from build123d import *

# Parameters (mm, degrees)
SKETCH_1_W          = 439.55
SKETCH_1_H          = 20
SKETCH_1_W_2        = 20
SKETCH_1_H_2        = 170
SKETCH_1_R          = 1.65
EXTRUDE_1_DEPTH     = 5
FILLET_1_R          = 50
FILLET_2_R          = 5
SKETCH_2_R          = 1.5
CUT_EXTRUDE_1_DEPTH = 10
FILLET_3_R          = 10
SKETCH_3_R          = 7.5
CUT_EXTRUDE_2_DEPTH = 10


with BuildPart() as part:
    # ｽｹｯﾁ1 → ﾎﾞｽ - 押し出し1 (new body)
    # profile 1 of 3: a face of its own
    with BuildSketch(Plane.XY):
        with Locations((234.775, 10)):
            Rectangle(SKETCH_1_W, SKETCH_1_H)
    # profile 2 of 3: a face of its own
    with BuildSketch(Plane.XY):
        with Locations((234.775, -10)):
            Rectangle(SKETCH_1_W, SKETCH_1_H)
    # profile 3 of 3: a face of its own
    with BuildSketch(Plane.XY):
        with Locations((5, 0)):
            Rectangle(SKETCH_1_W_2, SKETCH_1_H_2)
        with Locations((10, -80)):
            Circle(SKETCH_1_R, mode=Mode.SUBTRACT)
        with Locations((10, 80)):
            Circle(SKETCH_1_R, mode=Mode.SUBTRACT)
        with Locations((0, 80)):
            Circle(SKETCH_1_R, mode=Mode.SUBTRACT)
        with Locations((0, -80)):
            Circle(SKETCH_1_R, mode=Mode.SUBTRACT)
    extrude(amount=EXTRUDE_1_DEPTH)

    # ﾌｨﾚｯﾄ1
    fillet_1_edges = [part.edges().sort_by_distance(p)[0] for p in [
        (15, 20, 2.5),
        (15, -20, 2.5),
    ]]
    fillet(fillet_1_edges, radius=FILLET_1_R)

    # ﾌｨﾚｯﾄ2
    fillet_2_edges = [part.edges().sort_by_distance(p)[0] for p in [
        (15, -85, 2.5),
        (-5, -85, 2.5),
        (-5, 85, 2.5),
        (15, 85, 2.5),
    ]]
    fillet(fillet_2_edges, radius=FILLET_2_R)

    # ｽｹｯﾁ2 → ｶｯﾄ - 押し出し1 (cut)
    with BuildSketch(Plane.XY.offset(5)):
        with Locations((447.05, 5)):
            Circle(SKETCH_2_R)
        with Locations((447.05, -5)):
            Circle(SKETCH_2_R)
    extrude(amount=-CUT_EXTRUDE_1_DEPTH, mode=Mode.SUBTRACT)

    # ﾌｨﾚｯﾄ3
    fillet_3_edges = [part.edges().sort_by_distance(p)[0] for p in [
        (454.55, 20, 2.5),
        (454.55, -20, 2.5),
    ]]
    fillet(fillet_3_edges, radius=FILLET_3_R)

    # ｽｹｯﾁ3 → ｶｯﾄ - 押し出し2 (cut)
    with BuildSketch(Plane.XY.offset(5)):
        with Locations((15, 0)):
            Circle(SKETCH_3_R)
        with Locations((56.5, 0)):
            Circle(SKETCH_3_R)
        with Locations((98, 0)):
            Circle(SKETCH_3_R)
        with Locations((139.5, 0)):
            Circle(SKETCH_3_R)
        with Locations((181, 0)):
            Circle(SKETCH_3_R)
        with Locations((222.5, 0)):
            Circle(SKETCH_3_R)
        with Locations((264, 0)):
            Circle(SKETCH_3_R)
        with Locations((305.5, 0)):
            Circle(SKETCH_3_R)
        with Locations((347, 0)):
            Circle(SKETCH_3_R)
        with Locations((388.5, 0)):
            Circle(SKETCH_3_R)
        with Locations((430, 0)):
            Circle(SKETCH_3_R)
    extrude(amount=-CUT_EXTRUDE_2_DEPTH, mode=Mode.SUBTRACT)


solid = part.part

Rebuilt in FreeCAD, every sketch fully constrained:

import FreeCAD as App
import Part
import Sketcher

V = App.Vector
Q = App.Units.Quantity


def edges_at(feature, points):
    """Names of the edges that pass closest to the given points."""
    edges = feature.Shape.Edges
    near = lambda p: min(range(len(edges)), key=lambda i: edges[i].distToShape(Part.Vertex(*p))[0])
    return sorted({f"Edge{near(p) + 1}" for p in points})

doc = App.newDocument("Part")
body = doc.addObject("PartDesign::Body", "Body")

sketch1 = body.newObject("Sketcher::SketchObject", "Sketch")
sketch1.AttachmentSupport = (doc.getObject("XY_Plane"), [""])
sketch1.MapMode = "FlatFace"
sketch1.addGeometry(Part.LineSegment(V(454.55, 20, 0), V(15, 20, 0)), False)
sketch1.addGeometry(Part.LineSegment(V(15, 20, 0), V(15, 85, 0)), False)
sketch1.addGeometry(Part.LineSegment(V(15, 85, 0), V(-5, 85, 0)), False)
sketch1.addGeometry(Part.LineSegment(V(-5, 85, 0), V(-5, -85, 0)), False)
sketch1.addGeometry(Part.LineSegment(V(-5, -85, 0), V(15, -85, 0)), False)
sketch1.addGeometry(Part.LineSegment(V(15, -85, 0), V(15, -20, 0)), False)
sketch1.addGeometry(Part.LineSegment(V(15, -20, 0), V(454.55, -20, 0)), False)
sketch1.addGeometry(Part.LineSegment(V(454.55, -20, 0), V(454.55, 20, 0)), False)
sketch1.addGeometry(Part.Circle(V(10, 80, 0), V(0, 0, 1), 1.65), False)
sketch1.addGeometry(Part.Circle(V(0, -80, 0), V(0, 0, 1), 1.65), False)
sketch1.addGeometry(Part.Circle(V(10, -80, 0), V(0, 0, 1), 1.65), False)
sketch1.addGeometry(Part.Circle(V(0, 80, 0), V(0, 0, 1), 1.65), False)
sketch1.addConstraint(Sketcher.Constraint("Coincident", 0, 2, 1, 1))
sketch1.addConstraint(Sketcher.Constraint("Coincident", 1, 2, 2, 1))
sketch1.addConstraint(Sketcher.Constraint("Coincident", 2, 2, 3, 1))
sketch1.addConstraint(Sketcher.Constraint("Coincident", 3, 2, 4, 1))
sketch1.addConstraint(Sketcher.Constraint("Coincident", 4, 2, 5, 1))
sketch1.addConstraint(Sketcher.Constraint("Coincident", 5, 2, 6, 1))
sketch1.addConstraint(Sketcher.Constraint("Coincident", 6, 2, 7, 1))
sketch1.addConstraint(Sketcher.Constraint("Coincident", 7, 2, 0, 1))
sketch1.addConstraint(Sketcher.Constraint("Horizontal", 0))
sketch1.addConstraint(Sketcher.Constraint("Vertical", 1))
sketch1.addConstraint(Sketcher.Constraint("Horizontal", 2))
sketch1.addConstraint(Sketcher.Constraint("Vertical", 3))
sketch1.addConstraint(Sketcher.Constraint("Horizontal", 4))
sketch1.addConstraint(Sketcher.Constraint("Vertical", 5))
sketch1.addConstraint(Sketcher.Constraint("Horizontal", 6))
sketch1.addConstraint(Sketcher.Constraint("Vertical", 7))
sketch1.addConstraint(Sketcher.Constraint("Equal", 8, 9))
sketch1.addConstraint(Sketcher.Constraint("Equal", 9, 10))
sketch1.addConstraint(Sketcher.Constraint("Equal", 10, 11))
sketch1.addConstraint(Sketcher.Constraint("Symmetric", 9, 3, 11, 3, -1, 1))
sketch1.addConstraint(Sketcher.Constraint("Symmetric", 8, 3, 10, 3, -1))
sketch1.addConstraint(Sketcher.Constraint("Symmetric", 1, 2, 4, 2, -1))
sketch1.addConstraint(Sketcher.Constraint("PointOnObject", 9, 3, -2))
sketch1.addConstraint(Sketcher.Constraint("Horizontal", 9, 3, 10, 3))
sketch1.addConstraint(Sketcher.Constraint("Equal", 1, 5))
sketch1.addConstraint(Sketcher.Constraint("Diameter", 8, Q("3.3 mm")))
sketch1.addConstraint(Sketcher.Constraint("DistanceX", 2, 2, 2, 1, Q("20 mm")))
sketch1.addConstraint(Sketcher.Constraint("DistanceY", 1, 1, 1, 2, Q("65 mm")))
sketch1.addConstraint(Sketcher.Constraint("DistanceY", 3, 2, 3, 1, Q("170 mm")))
sketch1.addConstraint(Sketcher.Constraint("DistanceX", -1, 1, 8, 3, Q("10 mm")))
sketch1.addConstraint(Sketcher.Constraint("DistanceY", -1, 1, 8, 3, Q("80 mm")))
sketch1.addConstraint(Sketcher.Constraint("DistanceX", -1, 1, 0, 2, Q("15 mm")))
sketch1.addConstraint(Sketcher.Constraint("DistanceX", 0, 2, 0, 1, Q("439.55 mm")))
pad1 = body.newObject("PartDesign::Pad", "Pad")
pad1.Profile = sketch1
pad1.Length = 5
doc.recompute()

fillet = body.newObject("PartDesign::Fillet", "Fillet")
fillet.Base = (pad1, edges_at(pad1, [(15, 20, 2.5), (15, -20, 2.5)]))
fillet.Radius = 50
doc.recompute()

fillet2 = body.newObject("PartDesign::Fillet", "Fillet001")
fillet2.Base = (fillet, edges_at(fillet, [
    (15, -85, 2.5),
    (-5, -85, 2.5),
    (-5, 85, 2.5),
    (15, 85, 2.5),
]))
fillet2.Radius = 5

sketch2 = body.newObject("Sketcher::SketchObject", "Sketch001")
sketch2.AttachmentSupport = (doc.getObject("XY_Plane"), [""])
sketch2.MapMode = "FlatFace"
sketch2.AttachmentOffset = App.Placement(V(0, 0, 5), App.Rotation())
sketch2.addGeometry(Part.Circle(V(447.05, 5, 0), V(0, 0, 1), 1.5), False)
sketch2.addGeometry(Part.Circle(V(447.05, -5, 0), V(0, 0, 1), 1.5), False)
sketch2.addConstraint(Sketcher.Constraint("Equal", 0, 1))
sketch2.addConstraint(Sketcher.Constraint("Symmetric", 0, 3, 1, 3, -1))
sketch2.addConstraint(Sketcher.Constraint("Diameter", 0, Q("3 mm")))
sketch2.addConstraint(Sketcher.Constraint("DistanceY", -1, 1, 0, 3, Q("5 mm")))
sketch2.addConstraint(Sketcher.Constraint("DistanceX", -1, 1, 0, 3, Q("447.05 mm")))
pocket1 = body.newObject("PartDesign::Pocket", "Pocket")
pocket1.Profile = sketch2
pocket1.Length = 10
doc.recompute()

fillet3 = body.newObject("PartDesign::Fillet", "Fillet002")
fillet3.Base = (pocket1, edges_at(pocket1, [(454.55, 20, 2.5), (454.55, -20, 2.5)]))
fillet3.Radius = 10

sketch3 = body.newObject("Sketcher::SketchObject", "Sketch002")
sketch3.AttachmentSupport = (doc.getObject("XY_Plane"), [""])
sketch3.MapMode = "FlatFace"
sketch3.AttachmentOffset = App.Placement(V(0, 0, 5), App.Rotation())
sketch3.addGeometry(Part.Circle(V(15, 0, 0), V(0, 0, 1), 7.5), False)
sketch3.addGeometry(Part.Circle(V(56.5, 0, 0), V(0, 0, 1), 7.5), False)
sketch3.addGeometry(Part.Circle(V(98, 0, 0), V(0, 0, 1), 7.5), False)
sketch3.addGeometry(Part.Circle(V(139.5, 0, 0), V(0, 0, 1), 7.5), False)
sketch3.addGeometry(Part.Circle(V(181, 0, 0), V(0, 0, 1), 7.5), False)
sketch3.addGeometry(Part.Circle(V(222.5, 0, 0), V(0, 0, 1), 7.5), False)
sketch3.addGeometry(Part.Circle(V(264, 0, 0), V(0, 0, 1), 7.5), False)
sketch3.addGeometry(Part.Circle(V(305.5, 0, 0), V(0, 0, 1), 7.5), False)
sketch3.addGeometry(Part.Circle(V(347, 0, 0), V(0, 0, 1), 7.5), False)
sketch3.addGeometry(Part.Circle(V(388.5, 0, 0), V(0, 0, 1), 7.5), False)
sketch3.addGeometry(Part.Circle(V(430, 0, 0), V(0, 0, 1), 7.5), False)
sketch3.addConstraint(Sketcher.Constraint("Equal", 0, 1))
sketch3.addConstraint(Sketcher.Constraint("Equal", 1, 2))
sketch3.addConstraint(Sketcher.Constraint("Equal", 2, 3))
sketch3.addConstraint(Sketcher.Constraint("Equal", 3, 4))
sketch3.addConstraint(Sketcher.Constraint("Equal", 4, 5))
sketch3.addConstraint(Sketcher.Constraint("Equal", 5, 6))
sketch3.addConstraint(Sketcher.Constraint("Equal", 6, 7))
sketch3.addConstraint(Sketcher.Constraint("Equal", 7, 8))
sketch3.addConstraint(Sketcher.Constraint("Equal", 8, 9))
sketch3.addConstraint(Sketcher.Constraint("Equal", 9, 10))
sketch3.addConstraint(Sketcher.Constraint("PointOnObject", 0, 3, -1))
sketch3.addConstraint(Sketcher.Constraint("PointOnObject", 1, 3, -1))
sketch3.addConstraint(Sketcher.Constraint("PointOnObject", 2, 3, -1))
sketch3.addConstraint(Sketcher.Constraint("PointOnObject", 3, 3, -1))
sketch3.addConstraint(Sketcher.Constraint("PointOnObject", 4, 3, -1))
sketch3.addConstraint(Sketcher.Constraint("PointOnObject", 5, 3, -1))
sketch3.addConstraint(Sketcher.Constraint("PointOnObject", 6, 3, -1))
sketch3.addConstraint(Sketcher.Constraint("PointOnObject", 7, 3, -1))
sketch3.addConstraint(Sketcher.Constraint("PointOnObject", 8, 3, -1))
sketch3.addConstraint(Sketcher.Constraint("PointOnObject", 9, 3, -1))
sketch3.addConstraint(Sketcher.Constraint("PointOnObject", 10, 3, -1))
sketch3.addConstraint(Sketcher.Constraint("Diameter", 0, Q("15 mm")))
sketch3.addConstraint(Sketcher.Constraint("DistanceX", -1, 1, 0, 3, Q("15 mm")))
sketch3.addConstraint(Sketcher.Constraint("DistanceX", -1, 1, 2, 3, Q("98 mm")))
sketch3.addConstraint(Sketcher.Constraint("DistanceX", -1, 1, 4, 3, Q("181 mm")))
sketch3.addConstraint(Sketcher.Constraint("DistanceX", -1, 1, 6, 3, Q("264 mm")))
sketch3.addConstraint(Sketcher.Constraint("DistanceX", -1, 1, 8, 3, Q("347 mm")))
sketch3.addConstraint(Sketcher.Constraint("DistanceX", -1, 1, 10, 3, Q("430 mm")))
sketch3.addConstraint(Sketcher.Constraint("DistanceX", 1, 3, 3, 3, Q("83 mm")))
sketch3.addConstraint(Sketcher.Constraint("DistanceX", 3, 3, 5, 3, Q("83 mm")))
sketch3.addConstraint(Sketcher.Constraint("DistanceX", 5, 3, 7, 3, Q("83 mm")))
sketch3.addConstraint(Sketcher.Constraint("DistanceX", 7, 3, 9, 3, Q("83 mm")))
sketch3.addConstraint(Sketcher.Constraint("DistanceX", -1, 1, 1, 3, Q("56.5 mm")))
pocket2 = body.newObject("PartDesign::Pocket", "Pocket001")
pocket2.Profile = sketch3
pocket2.Length = 10

doc.recompute()
